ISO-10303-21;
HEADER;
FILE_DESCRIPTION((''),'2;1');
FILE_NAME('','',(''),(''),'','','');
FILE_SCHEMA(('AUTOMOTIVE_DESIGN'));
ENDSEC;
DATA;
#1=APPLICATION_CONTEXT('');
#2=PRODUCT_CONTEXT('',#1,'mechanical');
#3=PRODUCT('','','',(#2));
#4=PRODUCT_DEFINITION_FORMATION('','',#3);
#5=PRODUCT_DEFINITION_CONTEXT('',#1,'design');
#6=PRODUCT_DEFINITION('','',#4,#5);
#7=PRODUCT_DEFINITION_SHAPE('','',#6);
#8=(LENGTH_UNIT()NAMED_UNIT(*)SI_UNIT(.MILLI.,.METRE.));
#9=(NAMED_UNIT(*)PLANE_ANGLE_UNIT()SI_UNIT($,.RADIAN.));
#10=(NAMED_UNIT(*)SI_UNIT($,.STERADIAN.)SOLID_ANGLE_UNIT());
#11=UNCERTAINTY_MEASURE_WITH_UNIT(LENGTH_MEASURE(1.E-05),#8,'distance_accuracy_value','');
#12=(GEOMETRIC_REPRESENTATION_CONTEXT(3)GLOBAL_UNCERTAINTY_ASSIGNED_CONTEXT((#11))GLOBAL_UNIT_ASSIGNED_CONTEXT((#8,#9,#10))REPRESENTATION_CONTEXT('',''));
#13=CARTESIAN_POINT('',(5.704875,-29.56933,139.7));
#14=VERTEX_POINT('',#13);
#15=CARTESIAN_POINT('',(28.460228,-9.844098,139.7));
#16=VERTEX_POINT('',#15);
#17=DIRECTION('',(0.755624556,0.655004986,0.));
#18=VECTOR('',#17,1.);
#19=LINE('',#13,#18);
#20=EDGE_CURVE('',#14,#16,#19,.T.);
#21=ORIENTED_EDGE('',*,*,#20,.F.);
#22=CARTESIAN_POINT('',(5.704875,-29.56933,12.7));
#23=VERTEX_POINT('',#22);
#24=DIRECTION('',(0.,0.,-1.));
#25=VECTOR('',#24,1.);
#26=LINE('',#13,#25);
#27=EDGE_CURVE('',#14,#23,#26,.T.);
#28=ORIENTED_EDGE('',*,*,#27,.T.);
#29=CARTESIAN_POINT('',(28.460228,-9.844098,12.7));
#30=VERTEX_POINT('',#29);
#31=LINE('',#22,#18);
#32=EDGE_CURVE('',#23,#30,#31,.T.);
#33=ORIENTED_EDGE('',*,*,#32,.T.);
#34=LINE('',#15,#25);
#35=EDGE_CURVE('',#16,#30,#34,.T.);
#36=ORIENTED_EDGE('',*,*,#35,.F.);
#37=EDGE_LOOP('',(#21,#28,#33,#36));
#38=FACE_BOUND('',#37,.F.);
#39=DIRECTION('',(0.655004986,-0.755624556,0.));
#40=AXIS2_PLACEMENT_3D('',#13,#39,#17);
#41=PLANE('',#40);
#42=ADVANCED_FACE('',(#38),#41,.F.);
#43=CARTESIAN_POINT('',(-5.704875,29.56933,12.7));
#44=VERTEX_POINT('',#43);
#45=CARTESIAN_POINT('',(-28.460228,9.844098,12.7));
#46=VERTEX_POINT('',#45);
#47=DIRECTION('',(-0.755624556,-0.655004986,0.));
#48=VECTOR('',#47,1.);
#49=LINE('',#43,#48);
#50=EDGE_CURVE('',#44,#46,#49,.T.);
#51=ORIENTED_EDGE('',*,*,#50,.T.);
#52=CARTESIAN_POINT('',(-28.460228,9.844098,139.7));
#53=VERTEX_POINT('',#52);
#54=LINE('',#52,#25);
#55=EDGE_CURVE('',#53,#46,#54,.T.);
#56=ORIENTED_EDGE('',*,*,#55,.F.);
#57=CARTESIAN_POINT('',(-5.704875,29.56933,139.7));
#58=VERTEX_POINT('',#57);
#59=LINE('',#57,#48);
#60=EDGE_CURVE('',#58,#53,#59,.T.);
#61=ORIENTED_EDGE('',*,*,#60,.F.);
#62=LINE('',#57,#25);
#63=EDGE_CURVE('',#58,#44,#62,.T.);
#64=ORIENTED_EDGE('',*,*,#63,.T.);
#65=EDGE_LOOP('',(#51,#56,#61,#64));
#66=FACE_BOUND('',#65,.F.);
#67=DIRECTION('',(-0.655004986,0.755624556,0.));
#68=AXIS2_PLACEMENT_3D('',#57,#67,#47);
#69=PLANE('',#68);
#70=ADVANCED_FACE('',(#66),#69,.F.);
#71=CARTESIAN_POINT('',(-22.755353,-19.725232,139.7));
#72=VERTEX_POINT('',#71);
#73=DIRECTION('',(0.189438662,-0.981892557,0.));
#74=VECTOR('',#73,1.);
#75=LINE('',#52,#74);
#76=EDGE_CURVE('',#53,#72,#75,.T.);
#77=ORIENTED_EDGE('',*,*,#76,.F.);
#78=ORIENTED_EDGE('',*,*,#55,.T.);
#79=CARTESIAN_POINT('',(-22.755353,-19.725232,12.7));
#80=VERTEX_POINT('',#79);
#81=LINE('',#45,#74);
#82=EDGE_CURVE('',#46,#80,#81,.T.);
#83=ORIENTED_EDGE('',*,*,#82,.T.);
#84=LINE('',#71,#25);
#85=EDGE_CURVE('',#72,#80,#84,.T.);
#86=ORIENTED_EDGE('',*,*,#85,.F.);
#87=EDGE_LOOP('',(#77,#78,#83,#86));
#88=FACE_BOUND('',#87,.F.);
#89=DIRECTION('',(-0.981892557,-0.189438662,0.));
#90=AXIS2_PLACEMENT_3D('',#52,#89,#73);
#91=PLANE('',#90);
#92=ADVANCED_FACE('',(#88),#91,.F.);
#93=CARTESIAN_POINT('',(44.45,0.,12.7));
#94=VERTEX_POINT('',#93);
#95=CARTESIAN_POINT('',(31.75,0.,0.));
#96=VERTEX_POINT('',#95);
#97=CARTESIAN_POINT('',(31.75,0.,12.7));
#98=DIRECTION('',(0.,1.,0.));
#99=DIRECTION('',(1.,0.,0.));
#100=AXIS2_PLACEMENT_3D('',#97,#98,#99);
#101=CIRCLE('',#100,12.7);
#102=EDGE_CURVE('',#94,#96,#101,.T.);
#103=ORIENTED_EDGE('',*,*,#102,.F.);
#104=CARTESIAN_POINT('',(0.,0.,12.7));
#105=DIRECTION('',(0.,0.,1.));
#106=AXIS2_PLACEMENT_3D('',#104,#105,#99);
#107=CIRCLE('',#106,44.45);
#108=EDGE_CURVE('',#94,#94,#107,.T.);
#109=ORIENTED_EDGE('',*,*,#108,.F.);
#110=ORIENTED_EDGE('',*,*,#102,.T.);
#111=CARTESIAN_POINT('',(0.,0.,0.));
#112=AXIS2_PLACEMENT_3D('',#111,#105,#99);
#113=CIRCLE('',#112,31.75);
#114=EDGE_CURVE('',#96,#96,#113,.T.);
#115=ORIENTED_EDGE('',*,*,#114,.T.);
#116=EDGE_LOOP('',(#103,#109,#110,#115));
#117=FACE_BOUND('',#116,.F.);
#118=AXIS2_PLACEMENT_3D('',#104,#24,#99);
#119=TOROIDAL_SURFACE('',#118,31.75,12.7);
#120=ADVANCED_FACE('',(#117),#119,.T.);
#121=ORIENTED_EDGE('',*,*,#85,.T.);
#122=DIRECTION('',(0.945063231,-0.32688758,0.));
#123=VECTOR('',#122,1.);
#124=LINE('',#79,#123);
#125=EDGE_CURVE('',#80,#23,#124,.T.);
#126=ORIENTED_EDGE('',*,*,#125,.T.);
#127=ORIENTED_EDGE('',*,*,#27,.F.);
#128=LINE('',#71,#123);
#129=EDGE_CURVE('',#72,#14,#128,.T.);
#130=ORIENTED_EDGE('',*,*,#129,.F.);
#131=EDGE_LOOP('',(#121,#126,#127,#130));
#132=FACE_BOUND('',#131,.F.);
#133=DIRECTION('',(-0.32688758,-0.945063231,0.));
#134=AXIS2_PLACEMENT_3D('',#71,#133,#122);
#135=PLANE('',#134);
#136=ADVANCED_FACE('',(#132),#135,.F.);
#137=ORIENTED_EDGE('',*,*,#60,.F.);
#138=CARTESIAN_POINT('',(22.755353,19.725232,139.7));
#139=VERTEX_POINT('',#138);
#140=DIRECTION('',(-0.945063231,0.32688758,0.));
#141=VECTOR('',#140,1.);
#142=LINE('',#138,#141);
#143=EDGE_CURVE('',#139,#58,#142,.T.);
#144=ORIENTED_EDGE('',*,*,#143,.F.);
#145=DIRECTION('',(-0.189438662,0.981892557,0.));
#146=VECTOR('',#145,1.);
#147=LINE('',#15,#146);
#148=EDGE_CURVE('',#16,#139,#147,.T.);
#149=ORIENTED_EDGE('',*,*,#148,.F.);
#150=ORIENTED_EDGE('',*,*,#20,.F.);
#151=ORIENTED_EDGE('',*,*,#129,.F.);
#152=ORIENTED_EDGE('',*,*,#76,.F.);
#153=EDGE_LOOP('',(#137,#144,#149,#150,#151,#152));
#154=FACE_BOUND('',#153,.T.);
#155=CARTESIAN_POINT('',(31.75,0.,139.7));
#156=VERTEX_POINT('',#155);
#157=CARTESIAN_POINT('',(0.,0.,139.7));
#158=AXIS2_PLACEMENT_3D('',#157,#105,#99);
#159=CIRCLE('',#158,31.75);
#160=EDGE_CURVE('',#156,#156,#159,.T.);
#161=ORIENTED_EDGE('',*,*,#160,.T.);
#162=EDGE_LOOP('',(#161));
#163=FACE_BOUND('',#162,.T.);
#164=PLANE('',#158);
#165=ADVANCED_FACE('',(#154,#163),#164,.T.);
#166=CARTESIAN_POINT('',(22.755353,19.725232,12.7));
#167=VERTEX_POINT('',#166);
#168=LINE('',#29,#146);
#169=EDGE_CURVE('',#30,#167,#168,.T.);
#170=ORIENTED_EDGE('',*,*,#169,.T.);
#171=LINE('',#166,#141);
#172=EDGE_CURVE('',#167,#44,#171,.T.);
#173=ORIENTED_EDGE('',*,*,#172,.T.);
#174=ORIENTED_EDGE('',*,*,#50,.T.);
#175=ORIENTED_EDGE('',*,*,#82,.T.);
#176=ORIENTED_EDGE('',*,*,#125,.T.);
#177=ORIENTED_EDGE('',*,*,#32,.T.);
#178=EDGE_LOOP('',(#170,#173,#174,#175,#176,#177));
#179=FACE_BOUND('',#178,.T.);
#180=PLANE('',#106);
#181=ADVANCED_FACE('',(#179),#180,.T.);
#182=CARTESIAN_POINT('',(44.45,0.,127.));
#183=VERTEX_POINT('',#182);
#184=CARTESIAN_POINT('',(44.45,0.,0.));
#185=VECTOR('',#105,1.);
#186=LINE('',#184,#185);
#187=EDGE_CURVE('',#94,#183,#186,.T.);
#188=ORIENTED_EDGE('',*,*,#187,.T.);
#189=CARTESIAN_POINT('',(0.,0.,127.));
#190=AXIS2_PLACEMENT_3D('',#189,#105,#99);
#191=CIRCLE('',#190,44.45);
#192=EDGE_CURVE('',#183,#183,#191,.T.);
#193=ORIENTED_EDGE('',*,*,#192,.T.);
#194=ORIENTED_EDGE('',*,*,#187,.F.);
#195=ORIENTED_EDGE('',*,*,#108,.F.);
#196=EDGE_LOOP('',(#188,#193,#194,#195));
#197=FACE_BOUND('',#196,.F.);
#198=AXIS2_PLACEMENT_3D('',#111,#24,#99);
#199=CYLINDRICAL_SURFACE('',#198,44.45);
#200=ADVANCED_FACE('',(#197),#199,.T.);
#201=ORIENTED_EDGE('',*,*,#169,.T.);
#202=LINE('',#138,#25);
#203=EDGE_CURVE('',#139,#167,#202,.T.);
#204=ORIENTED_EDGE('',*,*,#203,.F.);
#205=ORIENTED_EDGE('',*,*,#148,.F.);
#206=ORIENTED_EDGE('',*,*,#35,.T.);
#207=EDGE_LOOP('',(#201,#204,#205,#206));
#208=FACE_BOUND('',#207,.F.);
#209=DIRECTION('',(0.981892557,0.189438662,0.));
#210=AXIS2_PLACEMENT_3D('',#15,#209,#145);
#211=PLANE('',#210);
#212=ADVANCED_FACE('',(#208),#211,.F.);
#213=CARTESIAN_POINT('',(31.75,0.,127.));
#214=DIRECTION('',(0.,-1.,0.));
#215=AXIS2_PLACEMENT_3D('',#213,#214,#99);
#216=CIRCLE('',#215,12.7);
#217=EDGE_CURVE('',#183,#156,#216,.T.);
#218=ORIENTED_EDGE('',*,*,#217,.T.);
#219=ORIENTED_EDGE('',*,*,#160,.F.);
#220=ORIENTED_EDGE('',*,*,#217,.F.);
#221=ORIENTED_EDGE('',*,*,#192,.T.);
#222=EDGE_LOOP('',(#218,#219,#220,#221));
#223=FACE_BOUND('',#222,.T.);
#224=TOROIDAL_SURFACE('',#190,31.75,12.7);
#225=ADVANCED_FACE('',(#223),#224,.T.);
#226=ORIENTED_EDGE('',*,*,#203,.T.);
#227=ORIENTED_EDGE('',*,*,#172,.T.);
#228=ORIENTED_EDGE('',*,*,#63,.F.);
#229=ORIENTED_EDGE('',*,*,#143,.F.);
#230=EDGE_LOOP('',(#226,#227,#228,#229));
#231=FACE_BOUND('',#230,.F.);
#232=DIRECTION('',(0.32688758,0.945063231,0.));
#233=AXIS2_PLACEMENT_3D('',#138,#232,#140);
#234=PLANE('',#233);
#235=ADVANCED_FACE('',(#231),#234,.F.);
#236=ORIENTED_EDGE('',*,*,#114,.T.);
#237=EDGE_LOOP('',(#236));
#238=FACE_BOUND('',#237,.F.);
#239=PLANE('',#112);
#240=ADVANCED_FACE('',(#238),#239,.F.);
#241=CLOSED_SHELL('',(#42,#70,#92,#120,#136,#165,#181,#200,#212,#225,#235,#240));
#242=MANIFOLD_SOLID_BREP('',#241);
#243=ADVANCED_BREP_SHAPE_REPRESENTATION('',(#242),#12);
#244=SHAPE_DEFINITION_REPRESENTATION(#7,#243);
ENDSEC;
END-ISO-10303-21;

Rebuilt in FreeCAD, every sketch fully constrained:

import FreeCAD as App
import Part
import Sketcher
from FreeCAD import Vector
Q = App.Units.Quantity


def edges_at(feature, points):
    """Names of the edges that pass closest to the given points."""
    edges = feature.Shape.Edges
    near = lambda p: min(range(len(edges)), key=lambda i: edges[i].distToShape(Part.Vertex(*p))[0])
    return sorted({f"Edge{near(p) + 1}" for p in points})


def add_polygon(sketch, points):
    """Adds a closed chain of lines whose ends are joined by coincident constraints."""
    first, n = sketch.GeometryCount, len(points)
    for a, b in zip(points, points[1:] + points[:1]):
        sketch.addGeometry(Part.LineSegment(App.Vector(*a, 0), App.Vector(*b, 0)), False)
    for i in range(n):
        sketch.addConstraint(Sketcher.Constraint("Coincident", first + i, 2, first + (i + 1) % n, 1))

doc = App.newDocument("Part")
body = doc.addObject("PartDesign::Body", "Body")

# Sketch on XY plane
sketch1 = body.newObject("Sketcher::SketchObject", "Sketch")
sketch1.AttachmentSupport = (doc.getObject("XY_Plane"), [""])
sketch1.MapMode = "FlatFace"
sketch1.addGeometry(Part.Circle(Vector(0, 0, 0), Vector(0, 0, 1), 44), False)
sketch1.addConstraint(Sketcher.Constraint("Coincident", 0, 3, -1, 1))
sketch1.addConstraint(Sketcher.Constraint("Diameter", 0, Q("3.5 in")))
pad1 = body.newObject("PartDesign::Pad", "Pad")
pad1.Profile = sketch1
pad1.Length = Q("5.5 in")
doc.recompute()

fillet = body.newObject("PartDesign::Fillet", "Fillet")
fillet.Base = (pad1, edges_at(pad1, [(-44.45, 0, 0), (-44.45, 0, 139.7)]))
fillet.Radius = Q("0.5 in")

# Sketch on XY plane
sketch2 = body.newObject("Sketcher::SketchObject", "Sketch001")
sketch2.AttachmentSupport = (doc.getObject("XY_Plane"), [""])
sketch2.MapMode = "FlatFace"
sketch2.AttachmentOffset = App.Placement(Vector(0, 0, 5.5 * 25.4), App.Rotation())
sketch2.addGeometry(Part.Circle(Vector(0, 0, 0), Vector(0, 0, 1), 23), False)
sketch2.addConstraint(Sketcher.Constraint("Coincident", 0, 3, -1, 1))
sketch2.addConstraint(Sketcher.Constraint("Diameter", 0, 45.830102))
pocket1 = body.newObject("PartDesign::Pocket", "Pocket")
pocket1.Profile = sketch2
pocket1.Length = Q("5 in")

# Sketch on XY plane
sketch3 = body.newObject("Sketcher::SketchObject", "Sketch002")
sketch3.AttachmentSupport = (doc.getObject("XY_Plane"), [""])
sketch3.MapMode = "FlatFace"
sketch3.AttachmentOffset = App.Placement(Vector(0, 0, 5.5 * 25.4), App.Rotation())
add_polygon(sketch3, [(28, -10), (23, 20), (-6, 30), (-28, 10), (-23, -20), (6, -30)])  # lines 0-5
sketch3.addConstraint(Sketcher.Constraint("Symmetric", 0, 2, 3, 2, -1, 1))
sketch3.addConstraint(Sketcher.Constraint("Symmetric", 1, 2, 4, 2, -1, 1))
sketch3.addConstraint(Sketcher.Constraint("Symmetric", 2, 2, 5, 2, -1, 1))
sketch3.addConstraint(Sketcher.Constraint("Equal", 0, 1))
sketch3.addConstraint(Sketcher.Constraint("Equal", 1, 2))
sketch3.addConstraint(Sketcher.Constraint("DistanceY", -1, 1, 2, 2, 9.844098))
sketch3.addConstraint(Sketcher.Constraint("DistanceY", 0, 2, 1, 2, 9.844098))
sketch3.addConstraint(Sketcher.Constraint("Distance", 0, 30.114629))
sketch3.addConstraint(Sketcher.Constraint("DistanceY", -1, 1, 0, 2, 19.725232))
pocket2 = body.newObject("PartDesign::Pocket", "Pocket001")
pocket2.Profile = sketch3
pocket2.Length = Q("5 in")

doc.recompute()
